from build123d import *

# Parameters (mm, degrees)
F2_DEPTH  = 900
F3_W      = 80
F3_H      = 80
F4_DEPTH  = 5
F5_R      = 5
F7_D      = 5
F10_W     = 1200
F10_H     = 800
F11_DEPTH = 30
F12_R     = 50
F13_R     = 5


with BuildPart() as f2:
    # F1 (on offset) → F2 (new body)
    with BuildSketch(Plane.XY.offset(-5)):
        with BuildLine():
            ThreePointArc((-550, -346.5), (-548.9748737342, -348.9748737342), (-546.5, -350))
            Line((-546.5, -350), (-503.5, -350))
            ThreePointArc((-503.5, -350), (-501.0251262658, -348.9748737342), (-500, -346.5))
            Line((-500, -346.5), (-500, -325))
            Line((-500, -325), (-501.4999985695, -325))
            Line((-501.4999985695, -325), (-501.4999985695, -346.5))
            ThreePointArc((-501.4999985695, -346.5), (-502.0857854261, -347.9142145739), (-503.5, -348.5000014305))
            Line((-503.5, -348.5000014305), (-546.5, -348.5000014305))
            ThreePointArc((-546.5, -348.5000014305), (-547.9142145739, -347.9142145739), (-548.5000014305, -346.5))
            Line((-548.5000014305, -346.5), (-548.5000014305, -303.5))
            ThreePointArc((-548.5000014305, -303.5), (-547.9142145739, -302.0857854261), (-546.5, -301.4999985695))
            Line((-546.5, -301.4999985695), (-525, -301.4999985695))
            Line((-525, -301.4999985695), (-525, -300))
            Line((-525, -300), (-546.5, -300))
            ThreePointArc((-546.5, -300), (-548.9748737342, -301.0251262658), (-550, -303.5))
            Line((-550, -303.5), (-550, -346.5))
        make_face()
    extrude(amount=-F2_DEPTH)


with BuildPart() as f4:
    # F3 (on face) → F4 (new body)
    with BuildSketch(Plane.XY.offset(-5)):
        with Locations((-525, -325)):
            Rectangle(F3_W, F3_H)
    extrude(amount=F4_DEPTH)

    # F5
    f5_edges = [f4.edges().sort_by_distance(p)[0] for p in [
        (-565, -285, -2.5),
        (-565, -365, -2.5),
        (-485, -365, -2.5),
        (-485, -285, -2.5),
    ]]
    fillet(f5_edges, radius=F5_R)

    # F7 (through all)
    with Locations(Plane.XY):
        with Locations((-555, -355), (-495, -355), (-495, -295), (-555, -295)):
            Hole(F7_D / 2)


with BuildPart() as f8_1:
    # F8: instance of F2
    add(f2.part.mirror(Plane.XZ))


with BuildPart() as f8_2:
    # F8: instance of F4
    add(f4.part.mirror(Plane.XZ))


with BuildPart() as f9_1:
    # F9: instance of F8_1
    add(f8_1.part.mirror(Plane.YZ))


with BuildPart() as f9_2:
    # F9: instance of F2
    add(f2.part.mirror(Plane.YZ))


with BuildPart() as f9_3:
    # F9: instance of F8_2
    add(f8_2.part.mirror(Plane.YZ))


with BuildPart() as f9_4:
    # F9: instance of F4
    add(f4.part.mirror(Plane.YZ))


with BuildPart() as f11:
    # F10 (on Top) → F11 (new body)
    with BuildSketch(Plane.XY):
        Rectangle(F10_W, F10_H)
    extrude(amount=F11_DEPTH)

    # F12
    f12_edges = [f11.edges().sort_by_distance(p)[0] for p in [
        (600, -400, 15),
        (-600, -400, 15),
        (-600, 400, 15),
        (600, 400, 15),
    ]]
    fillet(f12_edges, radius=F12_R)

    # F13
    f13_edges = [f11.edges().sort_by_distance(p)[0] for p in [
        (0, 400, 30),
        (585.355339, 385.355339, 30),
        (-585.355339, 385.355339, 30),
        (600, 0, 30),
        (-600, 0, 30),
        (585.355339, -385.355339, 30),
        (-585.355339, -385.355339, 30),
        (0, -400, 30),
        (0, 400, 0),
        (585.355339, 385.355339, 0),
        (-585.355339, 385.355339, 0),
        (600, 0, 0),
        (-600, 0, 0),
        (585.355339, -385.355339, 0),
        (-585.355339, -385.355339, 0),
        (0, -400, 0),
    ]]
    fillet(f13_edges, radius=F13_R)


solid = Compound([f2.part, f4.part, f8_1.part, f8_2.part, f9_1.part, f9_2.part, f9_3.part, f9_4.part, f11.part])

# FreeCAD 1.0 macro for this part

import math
import FreeCAD as App
import Part
import Sketcher

V = App.Vector
Q = App.Units.Quantity


def edges_at(feature, points):
    """Names of the edges that pass closest to the given points."""
    edges = feature.Shape.Edges
    near = lambda p: min(range(len(edges)), key=lambda i: edges[i].distToShape(Part.Vertex(*p))[0])
    return sorted({f"Edge{near(p) + 1}" for p in points})


def add_polygon(sketch, points):
    """Adds a closed chain of lines whose ends are joined by coincident constraints."""
    first, n = sketch.GeometryCount, len(points)
    for a, b in zip(points, points[1:] + points[:1]):
        sketch.addGeometry(Part.LineSegment(App.Vector(*a, 0), App.Vector(*b, 0)), False)
    for i in range(n):
        sketch.addConstraint(Sketcher.Constraint("Coincident", first + i, 2, first + (i + 1) % n, 1))

doc = App.newDocument("Part")
body = doc.addObject("PartDesign::Body", "Body")

sketch1 = doc.addObject("Sketcher::SketchObject", "Sketch")
body.addObject(sketch1)
sketch1.AttachmentSupport = (doc.XY_Plane, [""])
sketch1.MapMode = "FlatFace"
sketch1.AttachmentOffset = App.Placement(V(0, 0, -5), App.Rotation())
sketch1.addGeometry([
    Part.ArcOfCircle(Part.Circle(V(-546.5, -346.5, 0), V(0, 0, 1), 3.5), math.radians(180), math.radians(270)),
    Part.LineSegment(V(-546.5, -350, 0), V(-503.5, -350, 0)),
    Part.ArcOfCircle(Part.Circle(V(-503.5, -346.5, 0), V(0, 0, 1), 3.5), math.radians(-90), math.radians(0)),
    Part.LineSegment(V(-500, -346.5, 0), V(-500, -325, 0)),
    Part.LineSegment(V(-500, -325, 0), V(-501.5, -325, 0)),
    Part.LineSegment(V(-501.5, -325, 0), V(-501.5, -346.5, 0)),
    Part.ArcOfCircle(Part.Circle(V(-503.5, -346.5, 0), V(0, 0, 1), 2), math.radians(-90), math.radians(0)),
    Part.LineSegment(V(-503.5, -348.5, 0), V(-546.5, -348.5, 0)),
    Part.ArcOfCircle(Part.Circle(V(-546.5, -346.5, 0), V(0, 0, 1), 2), math.radians(180), math.radians(270)),
    Part.LineSegment(V(-548.5, -346.5, 0), V(-548.5, -303.5, 0)),
    Part.ArcOfCircle(Part.Circle(V(-546.5, -303.5, 0), V(0, 0, 1), 2), math.radians(90), math.radians(180)),
    Part.LineSegment(V(-546.5, -301.5, 0), V(-525, -301.5, 0)),
    Part.LineSegment(V(-525, -301.5, 0), V(-525, -300, 0)),
    Part.LineSegment(V(-525, -300, 0), V(-546.5, -300, 0)),
    Part.ArcOfCircle(Part.Circle(V(-546.5, -303.5, 0), V(0, 0, 1), 3.5), math.radians(90), math.radians(180)),
    Part.LineSegment(V(-550, -303.5, 0), V(-550, -346.5, 0)),
], False)
sketch1.addConstraint([
    Sketcher.Constraint("Tangent", 0, 2, 1, 1),
    Sketcher.Constraint("Tangent", 1, 2, 2, 1),
    Sketcher.Constraint("Tangent", 2, 2, 3, 1),
    Sketcher.Constraint("Coincident", 3, 2, 4, 1),
    Sketcher.Constraint("Coincident", 4, 2, 5, 1),
    Sketcher.Constraint("Tangent", 5, 2, 6, 2),
    Sketcher.Constraint("Tangent", 6, 1, 7, 1),
    Sketcher.Constraint("Tangent", 7, 2, 8, 2),
    Sketcher.Constraint("Tangent", 8, 1, 9, 1),
    Sketcher.Constraint("Tangent", 9, 2, 10, 2),
    Sketcher.Constraint("Tangent", 10, 1, 11, 1),
    Sketcher.Constraint("Coincident", 11, 2, 12, 1),
    Sketcher.Constraint("Coincident", 12, 2, 13, 1),
    Sketcher.Constraint("Tangent", 13, 2, 14, 1),
    Sketcher.Constraint("Tangent", 14, 2, 15, 1),
    Sketcher.Constraint("Tangent", 15, 2, 0, 1),
    Sketcher.Constraint("Horizontal", 1),
    Sketcher.Constraint("Vertical", 3),
    Sketcher.Constraint("Horizontal", 4),
    Sketcher.Constraint("Vertical", 5),
    Sketcher.Constraint("Horizontal", 7),
    Sketcher.Constraint("Vertical", 9),
    Sketcher.Constraint("Horizontal", 11),
    Sketcher.Constraint("Vertical", 12),
    Sketcher.Constraint("Horizontal", 13),
    Sketcher.Constraint("Vertical", 15),
    Sketcher.Constraint("Coincident", 6, 3, 2, 3),
    Sketcher.Constraint("Coincident", 8, 3, 0, 3),
    Sketcher.Constraint("Coincident", 14, 3, 10, 3),
    Sketcher.Constraint("Equal", 0, 2),
    Sketcher.Constraint("Equal", 8, 10),
    Sketcher.Constraint("Equal", 13, 3),
    Sketcher.Constraint("Equal", 7, 9),
    Sketcher.Constraint("Radius", 6, Q("2.000001 mm")),
    Sketcher.Constraint("Radius", 0, Q("3.5 mm")),
    Sketcher.Constraint("DistanceX", 1, 1, 1, 2, Q("43 mm")),
    Sketcher.Constraint("DistanceX", 11, 1, 11, 2, Q("21.5 mm")),
    Sketcher.Constraint("DistanceY", 0, 2, -1, 1, Q("350 mm")),
    Sketcher.Constraint("DistanceX", 2, 2, -1, 1, Q("500 mm")),
])
pad1 = doc.addObject("PartDesign::Pad", "Pad")
body.addObject(pad1)
pad1.Profile = sketch1
pad1.Length = 900
pad1.Reversed = True
body2 = doc.addObject("PartDesign::Body", "Body001")

sketch2 = doc.addObject("Sketcher::SketchObject", "Sketch001")
body2.addObject(sketch2)
sketch2.AttachmentSupport = (doc.getObject("XY_Plane001"), [""])
sketch2.MapMode = "FlatFace"
sketch2.AttachmentOffset = App.Placement(V(0, 0, -5), App.Rotation())
add_polygon(sketch2, [(-565, -285), (-565, -365), (-485, -365), (-485, -285)])
sketch2.addConstraint([
    Sketcher.Constraint("Vertical", 0),
    Sketcher.Constraint("Horizontal", 1),
    Sketcher.Constraint("Vertical", 2),
    Sketcher.Constraint("Horizontal", 3),
    Sketcher.Constraint("Equal", 3, 0),
    Sketcher.Constraint("DistanceX", 1, 1, 1, 2, Q("80 mm")),
    Sketcher.Constraint("DistanceX", 0, 2, -1, 1, Q("565 mm")),
    Sketcher.Constraint("DistanceY", 0, 2, -1, 1, Q("365 mm")),
])
pad2 = doc.addObject("PartDesign::Pad", "Pad001")
body2.addObject(pad2)
pad2.Profile = sketch2
pad2.Length = 5
doc.recompute()

fillet = doc.addObject("PartDesign::Fillet", "Fillet")
body2.addObject(fillet)
fillet.Base = (pad2, edges_at(pad2, [
    (-565, -285, -2.5),
    (-565, -365, -2.5),
    (-485, -365, -2.5),
    (-485, -285, -2.5),
]))
fillet.Radius = 5

sketch3 = doc.addObject("Sketcher::SketchObject", "Sketch002")
body2.addObject(sketch3)
sketch3.AttachmentSupport = (doc.getObject("XY_Plane001"), [""])
sketch3.MapMode = "FlatFace"
sketch3.addGeometry([
    Part.Circle(V(-555, -355, 0), V(0, 0, 1), 2.5),
    Part.Circle(V(-495, -355, 0), V(0, 0, 1), 2.5),
    Part.Circle(V(-495, -295, 0), V(0, 0, 1), 2.5),
    Part.Circle(V(-555, -295, 0), V(0, 0, 1), 2.5),
], False)
sketch3.addConstraint([
    Sketcher.Constraint("Equal", 0, 1),
    Sketcher.Constraint("Equal", 1, 2),
    Sketcher.Constraint("Equal", 2, 3),
    Sketcher.Constraint("Horizontal", 0, 3, 1, 3),
    Sketcher.Constraint("Horizontal", 2, 3, 3, 3),
    Sketcher.Constraint("Vertical", 1, 3, 2, 3),
    Sketcher.Constraint("Vertical", 0, 3, 3, 3),
    Sketcher.Constraint("Diameter", 0, Q("5 mm")),
    Sketcher.Constraint("DistanceX", 0, 3, -1, 1, Q("555 mm")),
    Sketcher.Constraint("DistanceY", 0, 3, -1, 1, Q("355 mm")),
    Sketcher.Constraint("DistanceX", 1, 3, -1, 1, Q("495 mm")),
    Sketcher.Constraint("DistanceY", 2, 3, -1, 1, Q("295 mm")),
])
doc.recompute()
hole = doc.addObject("PartDesign::Hole", "Hole")
body2.addObject(hole)
hole.Profile = sketch3
hole.ThreadType = "None"
hole.Diameter = 5
hole.DepthType = "ThroughAll"
body3 = doc.addObject("PartDesign::Body", "Body002")
doc.recompute()

mirroring = doc.addObject("Part::Mirroring", "Mirroring")
mirroring.Source = body
mirroring.Base = V(0, 0, 0)
mirroring.Normal = V(0, -1, 0)
body3.BaseFeature = mirroring
doc.recompute()
body4 = doc.addObject("PartDesign::Body", "Body003")
doc.recompute()

mirroring2 = doc.addObject("Part::Mirroring", "Mirroring001")
mirroring2.Source = body2
mirroring2.Base = V(0, 0, 0)
mirroring2.Normal = V(0, -1, 0)
body4.BaseFeature = mirroring2
doc.recompute()
body5 = doc.addObject("PartDesign::Body", "Body004")
doc.recompute()

mirroring3 = doc.addObject("Part::Mirroring", "Mirroring002")
mirroring3.Source = body3
mirroring3.Base = V(0, 0, 0)
mirroring3.Normal = V(1, 0, 0)
body5.BaseFeature = mirroring3
doc.recompute()
body6 = doc.addObject("PartDesign::Body", "Body005")
doc.recompute()

mirroring4 = doc.addObject("Part::Mirroring", "Mirroring003")
mirroring4.Source = body
mirroring4.Base = V(0, 0, 0)
mirroring4.Normal = V(1, 0, 0)
body6.BaseFeature = mirroring4
doc.recompute()
body7 = doc.addObject("PartDesign::Body", "Body006")
doc.recompute()

mirroring5 = doc.addObject("Part::Mirroring", "Mirroring004")
mirroring5.Source = body4
mirroring5.Base = V(0, 0, 0)
mirroring5.Normal = V(1, 0, 0)
body7.BaseFeature = mirroring5
doc.recompute()
body8 = doc.addObject("PartDesign::Body", "Body007")
doc.recompute()

mirroring6 = doc.addObject("Part::Mirroring", "Mirroring005")
mirroring6.Source = body2
mirroring6.Base = V(0, 0, 0)
mirroring6.Normal = V(1, 0, 0)
body8.BaseFeature = mirroring6
doc.recompute()
body9 = doc.addObject("PartDesign::Body", "Body008")

sketch4 = doc.addObject("Sketcher::SketchObject", "Sketch003")
body9.addObject(sketch4)
sketch4.AttachmentSupport = (doc.getObject("XY_Plane008"), [""])
sketch4.MapMode = "FlatFace"
add_polygon(sketch4, [(-600, 400), (-600, -400), (600, -400), (600, 400)])
sketch4.addConstraint([
    Sketcher.Constraint("Vertical", 0),
    Sketcher.Constraint("Horizontal", 1),
    Sketcher.Constraint("Vertical", 2),
    Sketcher.Constraint("Horizontal", 3),
    Sketcher.Constraint("Symmetric", 0, 2, 2, 2, -1, 1),
    Sketcher.Constraint("DistanceX", 1, 1, 1, 2, Q("1200 mm")),
    Sketcher.Constraint("DistanceY", 0, 2, 0, 1, Q("800 mm")),
])
pad3 = doc.addObject("PartDesign::Pad", "Pad002")
body9.addObject(pad3)
pad3.Profile = sketch4
pad3.Length = 30
doc.recompute()

fillet2 = doc.addObject("PartDesign::Fillet", "Fillet001")
body9.addObject(fillet2)
fillet2.Base = (pad3, edges_at(pad3, [
    (600, -400, 15),
    (-600, -400, 15),
    (-600, 400, 15),
    (600, 400, 15),
]))
fillet2.Radius = 50
doc.recompute()

fillet3 = doc.addObject("PartDesign::Fillet", "Fillet002")
body9.addObject(fillet3)
fillet3.Base = (fillet2, edges_at(fillet2, [
    (0, 400, 30),
    (585.355, 385.355, 30),
    (-585.355, 385.355, 30),
    (600, 0, 30),
    (-600, 0, 30),
    (585.355, -385.355, 30),
    (-585.355, -385.355, 30),
    (0, -400, 30),
    (0, 400, 0),
    (585.355, 385.355, 0),
    (-585.355, 385.355, 0),
    (600, 0, 0),
    (-600, 0, 0),
    (585.355, -385.355, 0),
    (-585.355, -385.355, 0),
    (0, -400, 0),
]))
fillet3.Radius = 5
mirroring.Visibility = False
mirroring2.Visibility = False
mirroring3.Visibility = False
mirroring4.Visibility = False
mirroring5.Visibility = False
mirroring6.Visibility = False

doc.recompute()
